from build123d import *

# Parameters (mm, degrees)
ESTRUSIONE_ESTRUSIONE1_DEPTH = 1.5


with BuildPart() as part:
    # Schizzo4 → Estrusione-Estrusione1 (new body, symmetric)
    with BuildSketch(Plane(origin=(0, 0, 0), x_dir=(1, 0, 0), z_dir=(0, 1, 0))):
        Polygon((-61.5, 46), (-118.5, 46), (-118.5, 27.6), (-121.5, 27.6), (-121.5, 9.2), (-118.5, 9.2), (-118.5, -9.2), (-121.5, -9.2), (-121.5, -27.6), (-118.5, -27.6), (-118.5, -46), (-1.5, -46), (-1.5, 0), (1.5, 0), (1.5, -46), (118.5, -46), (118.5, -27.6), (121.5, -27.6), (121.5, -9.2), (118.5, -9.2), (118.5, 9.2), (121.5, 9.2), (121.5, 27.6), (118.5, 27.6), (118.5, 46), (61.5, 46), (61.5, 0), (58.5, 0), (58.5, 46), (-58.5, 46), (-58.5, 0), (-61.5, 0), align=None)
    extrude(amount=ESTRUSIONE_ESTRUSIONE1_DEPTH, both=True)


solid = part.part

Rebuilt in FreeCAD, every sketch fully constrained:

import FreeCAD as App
import Part
import Sketcher

V = App.Vector

doc = App.newDocument("Part")
body = doc.addObject("PartDesign::Body", "Body")

# Sketch on XZ plane
sketch1 = body.newObject("Sketcher::SketchObject", "Sketch")
sketch1.AttachmentSupport = (doc.getObject("XZ_Plane"), [""])
sketch1.MapMode = "FlatFace"
sketch1.addGeometry(Part.LineSegment(V(-61.5, -46, 0), V(-118.5, -46, 0)), False)
sketch1.addGeometry(Part.LineSegment(V(-118.5, -46, 0), V(-118.5, -27.6, 0)), False)
sketch1.addGeometry(Part.LineSegment(V(-118.5, -27.6, 0), V(-121.5, -27.6, 0)), False)
sketch1.addGeometry(Part.LineSegment(V(-121.5, -27.6, 0), V(-121.5, -9.2, 0)), False)
sketch1.addGeometry(Part.LineSegment(V(-121.5, -9.2, 0), V(-118.5, -9.2, 0)), False)
sketch1.addGeometry(Part.LineSegment(V(-118.5, -9.2, 0), V(-118.5, 9.2, 0)), False)
sketch1.addGeometry(Part.LineSegment(V(-118.5, 9.2, 0), V(-121.5, 9.2, 0)), False)
sketch1.addGeometry(Part.LineSegment(V(-121.5, 9.2, 0), V(-121.5, 27.6, 0)), False)
sketch1.addGeometry(Part.LineSegment(V(-121.5, 27.6, 0), V(-118.5, 27.6, 0)), False)
sketch1.addGeometry(Part.LineSegment(V(-118.5, 27.6, 0), V(-118.5, 46, 0)), False)
sketch1.addGeometry(Part.LineSegment(V(-118.5, 46, 0), V(-1.5, 46, 0)), False)
sketch1.addGeometry(Part.LineSegment(V(-1.5, 46, 0), V(-1.5, 0, 0)), False)
sketch1.addGeometry(Part.LineSegment(V(-1.5, 0, 0), V(1.5, 0, 0)), False)
sketch1.addGeometry(Part.LineSegment(V(1.5, 0, 0), V(1.5, 46, 0)), False)
sketch1.addGeometry(Part.LineSegment(V(1.5, 46, 0), V(118.5, 46, 0)), False)
sketch1.addGeometry(Part.LineSegment(V(118.5, 46, 0), V(118.5, 27.6, 0)), False)
sketch1.addGeometry(Part.LineSegment(V(118.5, 27.6, 0), V(121.5, 27.6, 0)), False)
sketch1.addGeometry(Part.LineSegment(V(121.5, 27.6, 0), V(121.5, 9.2, 0)), False)
sketch1.addGeometry(Part.LineSegment(V(121.5, 9.2, 0), V(118.5, 9.2, 0)), False)
sketch1.addGeometry(Part.LineSegment(V(118.5, 9.2, 0), V(118.5, -9.2, 0)), False)
sketch1.addGeometry(Part.LineSegment(V(118.5, -9.2, 0), V(121.5, -9.2, 0)), False)
sketch1.addGeometry(Part.LineSegment(V(121.5, -9.2, 0), V(121.5, -27.6, 0)), False)
sketch1.addGeometry(Part.LineSegment(V(121.5, -27.6, 0), V(118.5, -27.6, 0)), False)
sketch1.addGeometry(Part.LineSegment(V(118.5, -27.6, 0), V(118.5, -46, 0)), False)
sketch1.addGeometry(Part.LineSegment(V(118.5, -46, 0), V(61.5, -46, 0)), False)
sketch1.addGeometry(Part.LineSegment(V(61.5, -46, 0), V(61.5, 0, 0)), False)
sketch1.addGeometry(Part.LineSegment(V(61.5, 0, 0), V(58.5, 0, 0)), False)
sketch1.addGeometry(Part.LineSegment(V(58.5, 0, 0), V(58.5, -46, 0)), False)
sketch1.addGeometry(Part.LineSegment(V(58.5, -46, 0), V(-58.5, -46, 0)), False)
sketch1.addGeometry(Part.LineSegment(V(-58.5, -46, 0), V(-58.5, 0, 0)), False)
sketch1.addGeometry(Part.LineSegment(V(-58.5, 0, 0), V(-61.5, 0, 0)), False)
sketch1.addGeometry(Part.LineSegment(V(-61.5, 0, 0), V(-61.5, -46, 0)), False)
sketch1.addConstraint(Sketcher.Constraint("Coincident", 0, 2, 1, 1))
sketch1.addConstraint(Sketcher.Constraint("Coincident", 1, 2, 2, 1))
sketch1.addConstraint(Sketcher.Constraint("Coincident", 2, 2, 3, 1))
sketch1.addConstraint(Sketcher.Constraint("Coincident", 3, 2, 4, 1))
sketch1.addConstraint(Sketcher.Constraint("Coincident", 4, 2, 5, 1))
sketch1.addConstraint(Sketcher.Constraint("Coincident", 5, 2, 6, 1))
sketch1.addConstraint(Sketcher.Constraint("Coincident", 6, 2, 7, 1))
sketch1.addConstraint(Sketcher.Constraint("Coincident", 7, 2, 8, 1))
sketch1.addConstraint(Sketcher.Constraint("Coincident", 8, 2, 9, 1))
sketch1.addConstraint(Sketcher.Constraint("Coincident", 9, 2, 10, 1))
sketch1.addConstraint(Sketcher.Constraint("Coincident", 10, 2, 11, 1))
sketch1.addConstraint(Sketcher.Constraint("Coincident", 11, 2, 12, 1))
sketch1.addConstraint(Sketcher.Constraint("Coincident", 12, 2, 13, 1))
sketch1.addConstraint(Sketcher.Constraint("Coincident", 13, 2, 14, 1))
sketch1.addConstraint(Sketcher.Constraint("Coincident", 14, 2, 15, 1))
sketch1.addConstraint(Sketcher.Constraint("Coincident", 15, 2, 16, 1))
sketch1.addConstraint(Sketcher.Constraint("Coincident", 16, 2, 17, 1))
sketch1.addConstraint(Sketcher.Constraint("Coincident", 17, 2, 18, 1))
sketch1.addConstraint(Sketcher.Constraint("Coincident", 18, 2, 19, 1))
sketch1.addConstraint(Sketcher.Constraint("Coincident", 19, 2, 20, 1))
sketch1.addConstraint(Sketcher.Constraint("Coincident", 20, 2, 21, 1))
sketch1.addConstraint(Sketcher.Constraint("Coincident", 21, 2, 22, 1))
sketch1.addConstraint(Sketcher.Constraint("Coincident", 22, 2, 23, 1))
sketch1.addConstraint(Sketcher.Constraint("Coincident", 23, 2, 24, 1))
sketch1.addConstraint(Sketcher.Constraint("Coincident", 24, 2, 25, 1))
sketch1.addConstraint(Sketcher.Constraint("Coincident", 25, 2, 26, 1))
sketch1.addConstraint(Sketcher.Constraint("Coincident", 26, 2, 27, 1))
sketch1.addConstraint(Sketcher.Constraint("Coincident", 27, 2, 28, 1))
sketch1.addConstraint(Sketcher.Constraint("Coincident", 28, 2, 29, 1))
sketch1.addConstraint(Sketcher.Constraint("Coincident", 29, 2, 30, 1))
sketch1.addConstraint(Sketcher.Constraint("Coincident", 30, 2, 31, 1))
sketch1.addConstraint(Sketcher.Constraint("Coincident", 31, 2, 0, 1))
sketch1.addConstraint(Sketcher.Constraint("Horizontal", 0))
sketch1.addConstraint(Sketcher.Constraint("Vertical", 1))
sketch1.addConstraint(Sketcher.Constraint("Horizontal", 2))
sketch1.addConstraint(Sketcher.Constraint("Vertical", 3))
sketch1.addConstraint(Sketcher.Constraint("Horizontal", 4))
sketch1.addConstraint(Sketcher.Constraint("Vertical", 5))
sketch1.addConstraint(Sketcher.Constraint("Horizontal", 6))
sketch1.addConstraint(Sketcher.Constraint("Vertical", 7))
sketch1.addConstraint(Sketcher.Constraint("Horizontal", 8))
sketch1.addConstraint(Sketcher.Constraint("Vertical", 9))
sketch1.addConstraint(Sketcher.Constraint("Horizontal", 10))
sketch1.addConstraint(Sketcher.Constraint("Vertical", 11))
sketch1.addConstraint(Sketcher.Constraint("Horizontal", 12))
sketch1.addConstraint(Sketcher.Constraint("Vertical", 13))
sketch1.addConstraint(Sketcher.Constraint("Horizontal", 14))
sketch1.addConstraint(Sketcher.Constraint("Vertical", 15))
sketch1.addConstraint(Sketcher.Constraint("Horizontal", 16))
sketch1.addConstraint(Sketcher.Constraint("Vertical", 17))
sketch1.addConstraint(Sketcher.Constraint("Horizontal", 18))
sketch1.addConstraint(Sketcher.Constraint("Vertical", 19))
sketch1.addConstraint(Sketcher.Constraint("Horizontal", 20))
sketch1.addConstraint(Sketcher.Constraint("Vertical", 21))
sketch1.addConstraint(Sketcher.Constraint("Horizontal", 22))
sketch1.addConstraint(Sketcher.Constraint("Vertical", 23))
sketch1.addConstraint(Sketcher.Constraint("Horizontal", 24))
sketch1.addConstraint(Sketcher.Constraint("Vertical", 25))
sketch1.addConstraint(Sketcher.Constraint("Horizontal", 26))
sketch1.addConstraint(Sketcher.Constraint("Vertical", 27))
sketch1.addConstraint(Sketcher.Constraint("Horizontal", 28))
sketch1.addConstraint(Sketcher.Constraint("Vertical", 29))
sketch1.addConstraint(Sketcher.Constraint("Horizontal", 30))
sketch1.addConstraint(Sketcher.Constraint("Vertical", 31))
sketch1.addConstraint(Sketcher.Constraint("Symmetric", 11, 2, 12, 2, -1, 1))
sketch1.addConstraint(Sketcher.Constraint("Symmetric", 0, 2, 14, 2, -1, 1))
sketch1.addConstraint(Sketcher.Constraint("Symmetric", 2, 2, 16, 2, -1, 1))
sketch1.addConstraint(Sketcher.Constraint("Symmetric", 4, 2, 18, 2, -1, 1))
sketch1.addConstraint(Sketcher.Constraint("Symmetric", 6, 2, 20, 2, -1, 1))
sketch1.addConstraint(Sketcher.Constraint("Symmetric", 8, 2, 22, 2, -1, 1))
sketch1.addConstraint(Sketcher.Constraint("Symmetric", 26, 2, 29, 2, -1, 1))
sketch1.addConstraint(Sketcher.Constraint("Symmetric", 9, 2, 14, 2, -2))
sketch1.addConstraint(Sketcher.Constraint("Symmetric", 7, 2, 16, 2, -2))
sketch1.addConstraint(Sketcher.Constraint("Symmetric", 25, 2, 30, 2, -2))
sketch1.addConstraint(Sketcher.Constraint("Horizontal", 6, 2, 17, 2))
sketch1.addConstraint(Sketcher.Constraint("Horizontal", 0, 2, 23, 2))
sketch1.addConstraint(Sketcher.Constraint("Horizontal", 24, 2, 27, 2))
sketch1.addConstraint(Sketcher.Constraint("Vertical", 1, 2, 4, 2))
sketch1.addConstraint(Sketcher.Constraint("Equal", 8, 12))
sketch1.addConstraint(Sketcher.Constraint("Equal", 22, 26))
sketch1.addConstraint(Sketcher.Constraint("Equal", 14, 28))
sketch1.addConstraint(Sketcher.Constraint("Equal", 1, 3))
sketch1.addConstraint(Sketcher.Constraint("Equal", 3, 5))
sketch1.addConstraint(Sketcher.Constraint("DistanceX", 0, 2, 0, 1, 57.0))
sketch1.addConstraint(Sketcher.Constraint("DistanceX", 2, 2, 2, 1, 3.0))
sketch1.addConstraint(Sketcher.Constraint("DistanceY", 11, 2, 11, 1, 46.0))
pad1 = body.newObject("PartDesign::Pad", "Pad")
pad1.Profile = sketch1
pad1.Length = 3
pad1.Midplane = True

doc.recompute()
